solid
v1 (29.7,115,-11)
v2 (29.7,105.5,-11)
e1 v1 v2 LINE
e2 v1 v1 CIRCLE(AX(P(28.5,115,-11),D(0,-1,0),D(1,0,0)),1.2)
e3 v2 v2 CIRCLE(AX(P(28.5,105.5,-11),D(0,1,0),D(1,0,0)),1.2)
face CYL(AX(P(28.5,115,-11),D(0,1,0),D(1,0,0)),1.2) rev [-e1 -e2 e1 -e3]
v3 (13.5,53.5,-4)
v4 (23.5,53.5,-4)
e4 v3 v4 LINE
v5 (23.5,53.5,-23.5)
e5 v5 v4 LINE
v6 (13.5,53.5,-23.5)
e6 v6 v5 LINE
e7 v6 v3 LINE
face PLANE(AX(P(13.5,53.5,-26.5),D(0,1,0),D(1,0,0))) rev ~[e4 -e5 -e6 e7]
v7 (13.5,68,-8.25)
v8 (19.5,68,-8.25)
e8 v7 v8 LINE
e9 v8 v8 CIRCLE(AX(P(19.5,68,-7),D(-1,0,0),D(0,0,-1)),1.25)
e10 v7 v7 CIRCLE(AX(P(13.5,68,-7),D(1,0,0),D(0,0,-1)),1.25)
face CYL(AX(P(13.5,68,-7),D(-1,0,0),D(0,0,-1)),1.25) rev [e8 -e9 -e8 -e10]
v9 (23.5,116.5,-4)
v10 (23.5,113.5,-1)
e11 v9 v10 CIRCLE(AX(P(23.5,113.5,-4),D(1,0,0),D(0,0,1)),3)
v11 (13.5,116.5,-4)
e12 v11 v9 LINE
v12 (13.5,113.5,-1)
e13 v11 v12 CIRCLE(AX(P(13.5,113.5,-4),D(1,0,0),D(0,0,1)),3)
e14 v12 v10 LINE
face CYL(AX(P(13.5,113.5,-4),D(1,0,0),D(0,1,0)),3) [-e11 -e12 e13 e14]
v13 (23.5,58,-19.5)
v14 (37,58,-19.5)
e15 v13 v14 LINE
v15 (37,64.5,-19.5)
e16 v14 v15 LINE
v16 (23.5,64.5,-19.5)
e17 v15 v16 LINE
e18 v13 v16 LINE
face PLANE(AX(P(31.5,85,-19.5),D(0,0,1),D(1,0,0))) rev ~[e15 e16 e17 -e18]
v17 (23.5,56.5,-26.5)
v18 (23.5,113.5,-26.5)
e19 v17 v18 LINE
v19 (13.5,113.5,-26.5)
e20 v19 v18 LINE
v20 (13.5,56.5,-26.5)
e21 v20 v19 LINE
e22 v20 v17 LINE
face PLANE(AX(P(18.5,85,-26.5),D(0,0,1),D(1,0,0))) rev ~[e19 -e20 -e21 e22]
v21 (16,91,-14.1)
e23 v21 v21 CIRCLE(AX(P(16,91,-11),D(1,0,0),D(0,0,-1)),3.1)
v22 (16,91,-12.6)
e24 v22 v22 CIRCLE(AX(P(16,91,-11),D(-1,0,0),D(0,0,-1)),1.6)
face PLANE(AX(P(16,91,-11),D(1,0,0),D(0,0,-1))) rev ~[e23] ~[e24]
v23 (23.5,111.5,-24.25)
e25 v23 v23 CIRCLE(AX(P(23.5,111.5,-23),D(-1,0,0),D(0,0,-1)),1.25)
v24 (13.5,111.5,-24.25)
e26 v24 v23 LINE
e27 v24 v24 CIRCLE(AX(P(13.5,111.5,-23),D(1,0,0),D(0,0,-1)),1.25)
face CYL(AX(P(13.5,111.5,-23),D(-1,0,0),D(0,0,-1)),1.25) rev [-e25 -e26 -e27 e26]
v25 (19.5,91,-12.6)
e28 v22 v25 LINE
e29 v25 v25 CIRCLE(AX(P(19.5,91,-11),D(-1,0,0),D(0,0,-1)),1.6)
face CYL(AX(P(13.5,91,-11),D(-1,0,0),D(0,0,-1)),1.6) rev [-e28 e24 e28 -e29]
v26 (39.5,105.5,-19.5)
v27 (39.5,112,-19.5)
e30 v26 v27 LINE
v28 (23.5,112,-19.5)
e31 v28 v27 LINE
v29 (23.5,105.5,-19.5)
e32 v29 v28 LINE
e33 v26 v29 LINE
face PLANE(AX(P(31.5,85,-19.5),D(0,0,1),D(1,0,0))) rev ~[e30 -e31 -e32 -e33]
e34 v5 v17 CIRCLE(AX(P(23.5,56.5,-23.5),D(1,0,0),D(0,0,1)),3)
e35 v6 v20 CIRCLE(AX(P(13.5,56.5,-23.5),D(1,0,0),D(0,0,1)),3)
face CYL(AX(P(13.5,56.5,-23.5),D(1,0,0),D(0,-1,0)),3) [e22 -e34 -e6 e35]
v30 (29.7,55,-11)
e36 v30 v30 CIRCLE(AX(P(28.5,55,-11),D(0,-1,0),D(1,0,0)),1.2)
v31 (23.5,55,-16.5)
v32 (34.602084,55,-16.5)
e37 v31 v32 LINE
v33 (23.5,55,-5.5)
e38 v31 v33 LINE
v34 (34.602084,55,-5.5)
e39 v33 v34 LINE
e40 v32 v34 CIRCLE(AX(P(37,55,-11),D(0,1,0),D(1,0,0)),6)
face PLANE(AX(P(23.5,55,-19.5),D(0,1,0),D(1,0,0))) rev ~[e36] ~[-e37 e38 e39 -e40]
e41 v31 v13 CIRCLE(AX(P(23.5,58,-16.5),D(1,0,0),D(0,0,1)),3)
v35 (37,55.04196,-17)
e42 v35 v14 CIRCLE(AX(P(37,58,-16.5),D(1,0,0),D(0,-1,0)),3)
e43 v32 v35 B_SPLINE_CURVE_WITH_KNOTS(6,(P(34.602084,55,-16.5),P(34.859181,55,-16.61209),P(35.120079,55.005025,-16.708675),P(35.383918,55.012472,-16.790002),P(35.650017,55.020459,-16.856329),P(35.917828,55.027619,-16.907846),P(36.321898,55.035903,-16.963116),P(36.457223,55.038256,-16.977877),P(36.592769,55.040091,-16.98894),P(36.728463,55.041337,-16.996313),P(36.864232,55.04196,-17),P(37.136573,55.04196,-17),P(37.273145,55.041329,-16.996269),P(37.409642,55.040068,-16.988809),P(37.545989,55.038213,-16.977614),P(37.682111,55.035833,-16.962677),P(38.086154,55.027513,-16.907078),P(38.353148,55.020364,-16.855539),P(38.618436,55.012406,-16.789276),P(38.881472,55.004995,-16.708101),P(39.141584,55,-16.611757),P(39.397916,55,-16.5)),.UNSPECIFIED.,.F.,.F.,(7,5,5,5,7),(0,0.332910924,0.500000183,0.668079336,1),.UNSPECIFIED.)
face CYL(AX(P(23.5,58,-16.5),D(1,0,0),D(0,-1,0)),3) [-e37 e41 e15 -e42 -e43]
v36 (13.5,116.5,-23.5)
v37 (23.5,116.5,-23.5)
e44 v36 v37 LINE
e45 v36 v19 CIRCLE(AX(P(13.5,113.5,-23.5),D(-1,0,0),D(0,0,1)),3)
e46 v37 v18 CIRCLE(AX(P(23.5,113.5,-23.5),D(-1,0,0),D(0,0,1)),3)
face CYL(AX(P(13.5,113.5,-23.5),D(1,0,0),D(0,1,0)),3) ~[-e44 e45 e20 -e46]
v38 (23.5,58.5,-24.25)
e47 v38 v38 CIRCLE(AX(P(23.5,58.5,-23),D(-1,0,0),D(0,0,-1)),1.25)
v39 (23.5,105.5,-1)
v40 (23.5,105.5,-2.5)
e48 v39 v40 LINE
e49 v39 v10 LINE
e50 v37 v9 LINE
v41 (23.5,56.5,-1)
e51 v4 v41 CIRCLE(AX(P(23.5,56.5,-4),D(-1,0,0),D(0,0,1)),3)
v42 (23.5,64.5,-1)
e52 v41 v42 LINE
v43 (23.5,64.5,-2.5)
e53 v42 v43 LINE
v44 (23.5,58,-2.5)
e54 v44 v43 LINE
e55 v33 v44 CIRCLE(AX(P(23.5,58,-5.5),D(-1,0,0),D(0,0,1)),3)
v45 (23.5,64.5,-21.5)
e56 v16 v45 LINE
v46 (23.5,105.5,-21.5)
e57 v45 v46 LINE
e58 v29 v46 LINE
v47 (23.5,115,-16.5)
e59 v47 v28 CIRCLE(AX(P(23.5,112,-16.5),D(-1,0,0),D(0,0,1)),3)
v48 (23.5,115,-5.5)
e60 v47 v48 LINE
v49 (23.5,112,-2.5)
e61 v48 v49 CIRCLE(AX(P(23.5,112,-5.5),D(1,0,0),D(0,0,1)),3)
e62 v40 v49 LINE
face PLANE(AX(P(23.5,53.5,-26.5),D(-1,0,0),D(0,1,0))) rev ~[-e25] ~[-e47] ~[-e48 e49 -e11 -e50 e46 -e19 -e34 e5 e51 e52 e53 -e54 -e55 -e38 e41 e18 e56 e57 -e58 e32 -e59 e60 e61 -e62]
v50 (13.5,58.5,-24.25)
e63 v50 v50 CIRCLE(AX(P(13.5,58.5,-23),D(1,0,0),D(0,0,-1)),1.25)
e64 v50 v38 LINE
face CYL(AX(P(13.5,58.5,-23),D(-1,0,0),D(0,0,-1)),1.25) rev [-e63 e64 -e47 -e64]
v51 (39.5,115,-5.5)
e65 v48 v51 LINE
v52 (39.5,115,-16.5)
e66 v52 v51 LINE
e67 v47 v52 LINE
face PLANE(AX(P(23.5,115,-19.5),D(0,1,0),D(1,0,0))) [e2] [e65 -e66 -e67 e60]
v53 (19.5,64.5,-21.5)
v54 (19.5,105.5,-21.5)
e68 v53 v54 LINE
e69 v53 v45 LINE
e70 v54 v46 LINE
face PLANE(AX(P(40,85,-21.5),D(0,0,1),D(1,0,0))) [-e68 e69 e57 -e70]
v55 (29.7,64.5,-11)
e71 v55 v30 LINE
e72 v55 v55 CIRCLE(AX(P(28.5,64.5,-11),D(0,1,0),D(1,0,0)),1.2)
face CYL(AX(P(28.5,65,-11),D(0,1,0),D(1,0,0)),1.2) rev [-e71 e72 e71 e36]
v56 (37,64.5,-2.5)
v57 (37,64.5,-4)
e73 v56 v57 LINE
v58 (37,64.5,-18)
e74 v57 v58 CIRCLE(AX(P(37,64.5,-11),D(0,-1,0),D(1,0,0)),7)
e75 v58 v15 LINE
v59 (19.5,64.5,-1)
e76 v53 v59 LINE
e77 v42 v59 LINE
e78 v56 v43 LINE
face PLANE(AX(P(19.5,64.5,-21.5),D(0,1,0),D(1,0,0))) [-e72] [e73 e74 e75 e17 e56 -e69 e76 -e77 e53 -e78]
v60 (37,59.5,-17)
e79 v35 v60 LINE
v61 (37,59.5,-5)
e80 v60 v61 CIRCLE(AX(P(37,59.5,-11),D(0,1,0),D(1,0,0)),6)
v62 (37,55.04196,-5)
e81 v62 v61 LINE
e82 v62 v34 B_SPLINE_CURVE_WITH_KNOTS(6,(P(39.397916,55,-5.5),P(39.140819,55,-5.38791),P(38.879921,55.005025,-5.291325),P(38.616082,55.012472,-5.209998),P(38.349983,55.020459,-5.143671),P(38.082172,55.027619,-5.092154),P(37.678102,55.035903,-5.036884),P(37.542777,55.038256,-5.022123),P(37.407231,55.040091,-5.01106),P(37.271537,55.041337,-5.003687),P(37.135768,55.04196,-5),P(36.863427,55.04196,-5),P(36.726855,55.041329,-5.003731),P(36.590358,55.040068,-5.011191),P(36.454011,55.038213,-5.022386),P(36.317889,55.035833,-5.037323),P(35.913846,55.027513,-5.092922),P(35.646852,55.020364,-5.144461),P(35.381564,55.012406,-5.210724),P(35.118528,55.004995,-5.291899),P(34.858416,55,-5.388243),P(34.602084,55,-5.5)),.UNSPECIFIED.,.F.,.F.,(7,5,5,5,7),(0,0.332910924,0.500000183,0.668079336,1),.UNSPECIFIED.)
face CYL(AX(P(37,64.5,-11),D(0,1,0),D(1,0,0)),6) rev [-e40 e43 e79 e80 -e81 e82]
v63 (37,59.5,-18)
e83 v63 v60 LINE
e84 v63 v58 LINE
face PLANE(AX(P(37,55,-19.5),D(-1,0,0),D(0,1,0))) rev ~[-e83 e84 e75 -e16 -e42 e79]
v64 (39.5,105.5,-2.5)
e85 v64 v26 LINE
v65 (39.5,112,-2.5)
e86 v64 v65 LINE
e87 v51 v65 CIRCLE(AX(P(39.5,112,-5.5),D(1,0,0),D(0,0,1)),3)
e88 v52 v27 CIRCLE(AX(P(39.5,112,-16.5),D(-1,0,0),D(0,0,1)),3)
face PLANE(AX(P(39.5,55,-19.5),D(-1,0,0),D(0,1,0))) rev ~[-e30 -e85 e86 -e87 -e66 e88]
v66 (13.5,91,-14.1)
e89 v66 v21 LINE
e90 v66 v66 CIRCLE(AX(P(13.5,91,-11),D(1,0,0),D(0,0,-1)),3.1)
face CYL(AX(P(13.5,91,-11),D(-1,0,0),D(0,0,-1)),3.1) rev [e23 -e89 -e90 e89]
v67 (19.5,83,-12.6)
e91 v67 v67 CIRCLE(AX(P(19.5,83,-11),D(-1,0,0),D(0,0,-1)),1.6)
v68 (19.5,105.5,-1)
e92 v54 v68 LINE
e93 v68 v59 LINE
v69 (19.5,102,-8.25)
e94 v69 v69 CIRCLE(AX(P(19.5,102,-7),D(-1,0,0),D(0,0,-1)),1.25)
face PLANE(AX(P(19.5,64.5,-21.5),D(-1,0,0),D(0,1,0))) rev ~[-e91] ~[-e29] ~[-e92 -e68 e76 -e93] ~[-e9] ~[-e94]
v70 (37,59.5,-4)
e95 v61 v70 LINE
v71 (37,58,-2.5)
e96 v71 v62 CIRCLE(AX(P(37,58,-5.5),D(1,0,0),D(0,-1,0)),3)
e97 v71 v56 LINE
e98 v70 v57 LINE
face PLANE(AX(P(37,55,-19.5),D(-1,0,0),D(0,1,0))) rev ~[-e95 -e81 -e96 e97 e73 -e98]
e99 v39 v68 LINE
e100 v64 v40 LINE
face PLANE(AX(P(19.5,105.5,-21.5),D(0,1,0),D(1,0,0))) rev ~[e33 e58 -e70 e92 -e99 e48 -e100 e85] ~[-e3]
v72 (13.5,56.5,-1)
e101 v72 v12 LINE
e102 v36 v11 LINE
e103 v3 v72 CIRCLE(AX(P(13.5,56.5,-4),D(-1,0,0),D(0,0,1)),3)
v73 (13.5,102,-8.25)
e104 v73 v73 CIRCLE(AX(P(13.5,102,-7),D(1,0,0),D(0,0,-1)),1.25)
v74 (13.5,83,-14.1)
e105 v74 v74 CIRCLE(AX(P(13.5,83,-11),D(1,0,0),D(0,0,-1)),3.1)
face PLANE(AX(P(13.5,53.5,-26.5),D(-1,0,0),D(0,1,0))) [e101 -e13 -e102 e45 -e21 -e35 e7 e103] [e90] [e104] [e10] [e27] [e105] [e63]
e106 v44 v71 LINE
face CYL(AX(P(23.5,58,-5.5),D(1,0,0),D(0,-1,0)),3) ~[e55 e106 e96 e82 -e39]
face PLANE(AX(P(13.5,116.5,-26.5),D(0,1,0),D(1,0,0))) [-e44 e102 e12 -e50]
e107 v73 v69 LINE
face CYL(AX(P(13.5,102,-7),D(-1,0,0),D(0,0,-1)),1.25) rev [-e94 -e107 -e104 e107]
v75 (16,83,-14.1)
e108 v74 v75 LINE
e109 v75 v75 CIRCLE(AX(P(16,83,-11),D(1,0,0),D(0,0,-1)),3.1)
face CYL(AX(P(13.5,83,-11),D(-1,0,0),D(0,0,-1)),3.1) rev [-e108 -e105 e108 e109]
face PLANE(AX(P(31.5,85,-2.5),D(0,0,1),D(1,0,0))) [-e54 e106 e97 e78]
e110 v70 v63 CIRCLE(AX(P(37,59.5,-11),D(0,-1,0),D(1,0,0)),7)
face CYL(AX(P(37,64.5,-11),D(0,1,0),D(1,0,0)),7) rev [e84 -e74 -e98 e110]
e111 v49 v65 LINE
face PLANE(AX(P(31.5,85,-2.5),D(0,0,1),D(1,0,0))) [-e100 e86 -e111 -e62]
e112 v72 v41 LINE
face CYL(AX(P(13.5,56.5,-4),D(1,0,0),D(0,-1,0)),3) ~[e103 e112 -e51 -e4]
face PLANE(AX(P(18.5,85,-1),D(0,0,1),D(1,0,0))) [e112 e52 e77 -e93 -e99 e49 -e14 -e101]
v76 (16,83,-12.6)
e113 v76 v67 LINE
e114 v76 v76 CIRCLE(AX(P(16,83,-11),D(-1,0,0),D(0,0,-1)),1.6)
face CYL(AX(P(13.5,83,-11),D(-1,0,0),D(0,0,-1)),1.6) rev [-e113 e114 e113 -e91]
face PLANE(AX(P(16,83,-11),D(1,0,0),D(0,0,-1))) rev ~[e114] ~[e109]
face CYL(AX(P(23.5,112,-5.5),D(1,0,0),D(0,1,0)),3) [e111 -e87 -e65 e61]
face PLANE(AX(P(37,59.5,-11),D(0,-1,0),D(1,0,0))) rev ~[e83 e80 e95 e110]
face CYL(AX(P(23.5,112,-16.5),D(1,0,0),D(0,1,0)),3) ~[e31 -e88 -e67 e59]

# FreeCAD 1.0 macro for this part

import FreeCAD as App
import Part
import Sketcher

V = App.Vector


def edges_at(feature, points):
    """Names of the edges that pass closest to the given points."""
    edges = feature.Shape.Edges
    near = lambda p: min(range(len(edges)), key=lambda i: edges[i].distToShape(Part.Vertex(*p))[0])
    return sorted({f"Edge{near(p) + 1}" for p in points})

doc = App.newDocument("Part")
body = doc.addObject("PartDesign::Body", "Body")

sketch1 = doc.addObject("Sketcher::SketchObject", "Sketch")
body.addObject(sketch1)
sketch1.AttachmentSupport = (doc.XY_Plane, [""])
sketch1.MapMode = "FlatFace"
sketch1.addGeometry(Part.Circle(V(0, 0, 0), V(0, 0, 1), 1.6), False)
sketch1.addConstraint(Sketcher.Constraint("Coincident", 0, 3, -1, 1))
sketch1.addConstraint(Sketcher.Constraint("Diameter", 0, 3.2))
pad1 = doc.addObject("PartDesign::Pad", "Pad")
body.addObject(pad1)
pad1.Profile = sketch1
pad1.Length = 10
body2 = doc.addObject("PartDesign::Body", "Body001")
doc.recompute()

body.Placement = App.Placement(V(0, 0, 0), App.Rotation(V(0, 1, 0), 90))
boolean = doc.addObject("PartDesign::Boolean", "Boolean")
body2.addObject(boolean)
boolean.Type = "Fuse"
boolean.addObjects([body])
body3 = doc.addObject("PartDesign::Body", "Body002")
doc.recompute()

body2.Placement = App.Placement(V(13.5, 83, -11), App.Rotation(V(0, 0, 1), 0))
boolean2 = doc.addObject("PartDesign::Boolean", "Boolean001")
body3.addObject(boolean2)
boolean2.Type = "Fuse"
boolean2.addObjects([body2])
body4 = doc.addObject("PartDesign::Body", "Body003")

sketch2 = doc.addObject("Sketcher::SketchObject", "Sketch001")
body4.addObject(sketch2)
sketch2.AttachmentSupport = (doc.getObject("XY_Plane003"), [""])
sketch2.MapMode = "FlatFace"
sketch2.addGeometry(Part.Circle(V(0, 0, 0), V(0, 0, 1), 1.6), False)
sketch2.addConstraint(Sketcher.Constraint("Coincident", 0, 3, -1, 1))
sketch2.addConstraint(Sketcher.Constraint("Diameter", 0, 3.2))
pad2 = doc.addObject("PartDesign::Pad", "Pad001")
body4.addObject(pad2)
pad2.Profile = sketch2
pad2.Length = 10
body5 = doc.addObject("PartDesign::Body", "Body004")
doc.recompute()

body4.Placement = App.Placement(V(0, 0, 0), App.Rotation(V(0, 1, 0), 90))
boolean3 = doc.addObject("PartDesign::Boolean", "Boolean002")
body5.addObject(boolean3)
boolean3.Type = "Fuse"
boolean3.addObjects([body4])
body6 = doc.addObject("PartDesign::Body", "Body005")
doc.recompute()

body5.Placement = App.Placement(V(13.5, 91, -11), App.Rotation(V(0, 0, 1), 0))
boolean4 = doc.addObject("PartDesign::Boolean", "Boolean003")
body6.addObject(boolean4)
boolean4.Type = "Fuse"
boolean4.addObjects([body5])
body7 = doc.addObject("PartDesign::Body", "Body006")

sketch3 = doc.addObject("Sketcher::SketchObject", "Sketch002")
body7.addObject(sketch3)
sketch3.AttachmentSupport = (doc.getObject("XY_Plane006"), [""])
sketch3.MapMode = "FlatFace"
sketch3.addGeometry(Part.Circle(V(0, 0, 0), V(0, 0, 1), 3.1), False)
sketch3.addConstraint(Sketcher.Constraint("Coincident", 0, 3, -1, 1))
sketch3.addConstraint(Sketcher.Constraint("Diameter", 0, 6.2))
pad3 = doc.addObject("PartDesign::Pad", "Pad002")
body7.addObject(pad3)
pad3.Profile = sketch3
pad3.Length = 2.5
body8 = doc.addObject("PartDesign::Body", "Body007")
doc.recompute()

body7.Placement = App.Placement(V(0, 0, 0), App.Rotation(V(0, 1, 0), 90))
boolean5 = doc.addObject("PartDesign::Boolean", "Boolean004")
body8.addObject(boolean5)
boolean5.Type = "Fuse"
boolean5.addObjects([body7])
body9 = doc.addObject("PartDesign::Body", "Body008")
doc.recompute()

body8.Placement = App.Placement(V(13.5, 83, -11), App.Rotation(V(0, 0, 1), 0))
boolean6 = doc.addObject("PartDesign::Boolean", "Boolean005")
body9.addObject(boolean6)
boolean6.Type = "Fuse"
boolean6.addObjects([body8])
body10 = doc.addObject("PartDesign::Body", "Body009")

sketch4 = doc.addObject("Sketcher::SketchObject", "Sketch003")
body10.addObject(sketch4)
sketch4.AttachmentSupport = (doc.getObject("XY_Plane009"), [""])
sketch4.MapMode = "FlatFace"
sketch4.addGeometry(Part.Circle(V(0, 0, 0), V(0, 0, 1), 3.1), False)
sketch4.addConstraint(Sketcher.Constraint("Coincident", 0, 3, -1, 1))
sketch4.addConstraint(Sketcher.Constraint("Diameter", 0, 6.2))
pad4 = doc.addObject("PartDesign::Pad", "Pad003")
body10.addObject(pad4)
pad4.Profile = sketch4
pad4.Length = 2.5
body11 = doc.addObject("PartDesign::Body", "Body010")
doc.recompute()

body10.Placement = App.Placement(V(0, 0, 0), App.Rotation(V(0, 1, 0), 90))
boolean7 = doc.addObject("PartDesign::Boolean", "Boolean006")
body11.addObject(boolean7)
boolean7.Type = "Fuse"
boolean7.addObjects([body10])
body12 = doc.addObject("PartDesign::Body", "Body011")
body12.AllowCompound = True
doc.recompute()

body11.Placement = App.Placement(V(13.5, 91, -11), App.Rotation(V(0, 0, 1), 0))
boolean8 = doc.addObject("PartDesign::Boolean", "Boolean007")
body12.addObject(boolean8)
boolean8.Type = "Fuse"
boolean8.addObjects([body11])
doc.recompute()

boolean9 = doc.addObject("PartDesign::Boolean", "Boolean008")
body12.addObject(boolean9)
boolean9.Type = "Fuse"
boolean9.addObjects([body3])
doc.recompute()

boolean10 = doc.addObject("PartDesign::Boolean", "Boolean009")
body12.addObject(boolean10)
boolean10.Type = "Fuse"
boolean10.addObjects([body6])
doc.recompute()

boolean11 = doc.addObject("PartDesign::Boolean", "Boolean010")
body12.addObject(boolean11)
boolean11.Type = "Fuse"
boolean11.addObjects([body9])
body13 = doc.addObject("PartDesign::Body", "Body012")

sketch5 = doc.addObject("Sketcher::SketchObject", "Sketch004")
body13.addObject(sketch5)
sketch5.AttachmentSupport = (doc.getObject("XY_Plane012"), [""])
sketch5.MapMode = "FlatFace"
sketch5.AttachmentOffset = App.Placement(V(0, 0, -21.5), App.Rotation())
sketch5.addGeometry(Part.LineSegment(V(20, 106, 0), V(20, 64, 0)), False)
sketch5.addGeometry(Part.LineSegment(V(20, 64, 0), V(60, 64, 0)), False)
sketch5.addGeometry(Part.LineSegment(V(60, 64, 0), V(60, 106, 0)), False)
sketch5.addGeometry(Part.LineSegment(V(60, 106, 0), V(20, 106, 0)), False)
sketch5.addConstraint(Sketcher.Constraint("Coincident", 0, 2, 1, 1))
sketch5.addConstraint(Sketcher.Constraint("Coincident", 1, 2, 2, 1))
sketch5.addConstraint(Sketcher.Constraint("Coincident", 2, 2, 3, 1))
sketch5.addConstraint(Sketcher.Constraint("Coincident", 3, 2, 0, 1))
sketch5.addConstraint(Sketcher.Constraint("Vertical", 0))
sketch5.addConstraint(Sketcher.Constraint("Horizontal", 1))
sketch5.addConstraint(Sketcher.Constraint("Vertical", 2))
sketch5.addConstraint(Sketcher.Constraint("Horizontal", 3))
sketch5.addConstraint(Sketcher.Constraint("Equal", 3, 0))
sketch5.addConstraint(Sketcher.Constraint("DistanceX", 1, 1, 1, 2, 41.0))
sketch5.addConstraint(Sketcher.Constraint("DistanceX", -1, 1, 0, 2, 19.5))
sketch5.addConstraint(Sketcher.Constraint("DistanceY", -1, 1, 0, 2, 64.5))
pad5 = doc.addObject("PartDesign::Pad", "Pad004")
body13.addObject(pad5)
pad5.Profile = sketch5
pad5.Length = 21
body14 = doc.addObject("PartDesign::Body", "Body013")

sketch6 = doc.addObject("Sketcher::SketchObject", "Sketch005")
body14.addObject(sketch6)
sketch6.AttachmentSupport = (doc.getObject("XY_Plane013"), [""])
sketch6.MapMode = "FlatFace"
sketch6.addGeometry(Part.Circle(V(0, 0, 0), V(0, 0, 1), 6), False)
sketch6.addConstraint(Sketcher.Constraint("Coincident", 0, 3, -1, 1))
sketch6.addConstraint(Sketcher.Constraint("Diameter", 0, 12.0))
pad6 = doc.addObject("PartDesign::Pad", "Pad005")
body14.addObject(pad6)
pad6.Profile = sketch6
pad6.Length = 11
body15 = doc.addObject("PartDesign::Body", "Body014")
doc.recompute()

body14.Placement = App.Placement(V(0, 0, 0), App.Rotation(V(1, 0, 0), 90))
boolean12 = doc.addObject("PartDesign::Boolean", "Boolean011")
body15.addObject(boolean12)
boolean12.Type = "Fuse"
boolean12.addObjects([body14])
body16 = doc.addObject("PartDesign::Body", "Body015")
doc.recompute()

body15.Placement = App.Placement(V(37, 64.5, -11), App.Rotation(V(0, 0, 1), 0))
boolean13 = doc.addObject("PartDesign::Boolean", "Boolean012")
body16.addObject(boolean13)
boolean13.Type = "Fuse"
boolean13.addObjects([body15])
body17 = doc.addObject("PartDesign::Body", "Body016")

sketch7 = doc.addObject("Sketcher::SketchObject", "Sketch006")
body17.addObject(sketch7)
sketch7.AttachmentSupport = (doc.getObject("XY_Plane016"), [""])
sketch7.MapMode = "FlatFace"
sketch7.addGeometry(Part.Circle(V(0, 0, 0), V(0, 0, 1), 7), False)
sketch7.addConstraint(Sketcher.Constraint("Coincident", 0, 3, -1, 1))
sketch7.addConstraint(Sketcher.Constraint("Diameter", 0, 14.0))
pad7 = doc.addObject("PartDesign::Pad", "Pad006")
body17.addObject(pad7)
pad7.Profile = sketch7
pad7.Length = 5
body18 = doc.addObject("PartDesign::Body", "Body017")
doc.recompute()

body17.Placement = App.Placement(V(0, 0, 0), App.Rotation(V(1, 0, 0), 90))
boolean14 = doc.addObject("PartDesign::Boolean", "Boolean013")
body18.addObject(boolean14)
boolean14.Type = "Fuse"
boolean14.addObjects([body17])
body19 = doc.addObject("PartDesign::Body", "Body018")
doc.recompute()

body18.Placement = App.Placement(V(37, 64.5, -11), App.Rotation(V(0, 0, 1), 0))
boolean15 = doc.addObject("PartDesign::Boolean", "Boolean014")
body19.addObject(boolean15)
boolean15.Type = "Fuse"
boolean15.addObjects([body18])
body20 = doc.addObject("PartDesign::Body", "Body019")

sketch8 = doc.addObject("Sketcher::SketchObject", "Sketch007")
body20.addObject(sketch8)
sketch8.AttachmentSupport = (doc.getObject("XY_Plane019"), [""])
sketch8.MapMode = "FlatFace"
sketch8.AttachmentOffset = App.Placement(V(0, 0, -19.5), App.Rotation())
sketch8.addGeometry(Part.LineSegment(V(37, 65, 0), V(37, 55, 0)), False)
sketch8.addGeometry(Part.LineSegment(V(37, 55, 0), V(47, 55, 0)), False)
sketch8.addGeometry(Part.LineSegment(V(47, 55, 0), V(47, 65, 0)), False)
sketch8.addGeometry(Part.LineSegment(V(47, 65, 0), V(37, 65, 0)), False)
sketch8.addConstraint(Sketcher.Constraint("Coincident", 0, 2, 1, 1))
sketch8.addConstraint(Sketcher.Constraint("Coincident", 1, 2, 2, 1))
sketch8.addConstraint(Sketcher.Constraint("Coincident", 2, 2, 3, 1))
sketch8.addConstraint(Sketcher.Constraint("Coincident", 3, 2, 0, 1))
sketch8.addConstraint(Sketcher.Constraint("Vertical", 0))
sketch8.addConstraint(Sketcher.Constraint("Horizontal", 1))
sketch8.addConstraint(Sketcher.Constraint("Vertical", 2))
sketch8.addConstraint(Sketcher.Constraint("Horizontal", 3))
sketch8.addConstraint(Sketcher.Constraint("Equal", 3, 0))
sketch8.addConstraint(Sketcher.Constraint("DistanceX", 1, 1, 1, 2, 10.0))
sketch8.addConstraint(Sketcher.Constraint("DistanceX", -1, 1, 0, 2, 37.0))
sketch8.addConstraint(Sketcher.Constraint("DistanceY", -1, 1, 0, 2, 55.0))
pad8 = doc.addObject("PartDesign::Pad", "Pad007")
body20.addObject(pad8)
pad8.Profile = sketch8
pad8.Length = 17
doc.recompute()

boolean16 = doc.addObject("PartDesign::Boolean", "Boolean015")
body20.addObject(boolean16)
boolean16.Type = "Fuse"
boolean16.addObjects([body13])
doc.recompute()

boolean17 = doc.addObject("PartDesign::Boolean", "Boolean016")
body20.addObject(boolean17)
boolean17.Type = "Fuse"
boolean17.addObjects([body16])
doc.recompute()

boolean18 = doc.addObject("PartDesign::Boolean", "Boolean017")
body20.addObject(boolean18)
boolean18.Type = "Fuse"
boolean18.addObjects([body19])
body21 = doc.addObject("PartDesign::Body", "Body020")

sketch9 = doc.addObject("Sketcher::SketchObject", "Sketch008")
body21.addObject(sketch9)
sketch9.AttachmentSupport = (doc.getObject("XY_Plane020"), [""])
sketch9.MapMode = "FlatFace"
sketch9.addGeometry(Part.Circle(V(0, 0, 0), V(0, 0, 1), 1.2), False)
sketch9.addConstraint(Sketcher.Constraint("Coincident", 0, 3, -1, 1))
sketch9.addConstraint(Sketcher.Constraint("Diameter", 0, 2.4))
pad9 = doc.addObject("PartDesign::Pad", "Pad008")
body21.addObject(pad9)
pad9.Profile = sketch9
pad9.Length = 10
body22 = doc.addObject("PartDesign::Body", "Body021")
doc.recompute()

body21.Placement = App.Placement(V(0, 0, 0), App.Rotation(V(1, 0, 0), 90))
boolean19 = doc.addObject("PartDesign::Boolean", "Boolean018")
body22.addObject(boolean19)
boolean19.Type = "Fuse"
boolean19.addObjects([body21])
body23 = doc.addObject("PartDesign::Body", "Body022")
doc.recompute()

body22.Placement = App.Placement(V(3, 10, 10), App.Rotation(V(0, 0, 1), 0))
boolean20 = doc.addObject("PartDesign::Boolean", "Boolean019")
body23.addObject(boolean20)
boolean20.Type = "Fuse"
boolean20.addObjects([body22])
body24 = doc.addObject("PartDesign::Body", "Body023")

sketch10 = doc.addObject("Sketcher::SketchObject", "Sketch009")
body24.addObject(sketch10)
sketch10.AttachmentSupport = (doc.getObject("XY_Plane023"), [""])
sketch10.MapMode = "FlatFace"
sketch10.addGeometry(Part.Circle(V(0, 0, 0), V(0, 0, 1), 1.2), False)
sketch10.addConstraint(Sketcher.Constraint("Coincident", 0, 3, -1, 1))
sketch10.addConstraint(Sketcher.Constraint("Diameter", 0, 2.4))
pad10 = doc.addObject("PartDesign::Pad", "Pad009")
body24.addObject(pad10)
pad10.Profile = sketch10
pad10.Length = 10
body25 = doc.addObject("PartDesign::Body", "Body024")
doc.recompute()

body24.Placement = App.Placement(V(0, 0, 0), App.Rotation(V(1, 0, 0), 90))
boolean21 = doc.addObject("PartDesign::Boolean", "Boolean020")
body25.addObject(boolean21)
boolean21.Type = "Fuse"
boolean21.addObjects([body24])
body26 = doc.addObject("PartDesign::Body", "Body025")
body26.AllowCompound = True
doc.recompute()

body25.Placement = App.Placement(V(3, 60, 10), App.Rotation(V(0, 0, 1), 0))
boolean22 = doc.addObject("PartDesign::Boolean", "Boolean021")
body26.addObject(boolean22)
boolean22.Type = "Fuse"
boolean22.addObjects([body25])
doc.recompute()

boolean23 = doc.addObject("PartDesign::Boolean", "Boolean022")
body26.addObject(boolean23)
boolean23.Type = "Fuse"
boolean23.addObjects([body23])
body27 = doc.addObject("PartDesign::Body", "Body026")
body27.AllowCompound = True
doc.recompute()

body26.Placement = App.Placement(V(0, 0, 2), App.Rotation(V(0, 0, 1), 0))
boolean24 = doc.addObject("PartDesign::Boolean", "Boolean023")
body27.addObject(boolean24)
boolean24.Type = "Fuse"
boolean24.addObjects([body26])
body28 = doc.addObject("PartDesign::Body", "Body027")

sketch11 = doc.addObject("Sketcher::SketchObject", "Sketch010")
body28.addObject(sketch11)
sketch11.AttachmentSupport = (doc.getObject("XY_Plane027"), [""])
sketch11.MapMode = "FlatFace"
sketch11.addGeometry(Part.Circle(V(0, 0, 0), V(0, 0, 1), 1.2), False)
sketch11.addConstraint(Sketcher.Constraint("Coincident", 0, 3, -1, 1))
sketch11.addConstraint(Sketcher.Constraint("Diameter", 0, 2.5))
pad11 = doc.addObject("PartDesign::Pad", "Pad010")
body28.addObject(pad11)
pad11.Profile = sketch11
pad11.Length = 15
body29 = doc.addObject("PartDesign::Body", "Body028")
doc.recompute()

body28.Placement = App.Placement(V(0, 0, 0), App.Rotation(V(0, 1, 0), 90))
boolean25 = doc.addObject("PartDesign::Boolean", "Boolean024")
body29.addObject(boolean25)
boolean25.Type = "Fuse"
boolean25.addObjects([body28])
body30 = doc.addObject("PartDesign::Body", "Body029")
doc.recompute()

body29.Placement = App.Placement(V(-2, 23, 15), App.Rotation(V(0, 0, 1), 0))
boolean26 = doc.addObject("PartDesign::Boolean", "Boolean025")
body30.addObject(boolean26)
boolean26.Type = "Fuse"
boolean26.addObjects([body29])
body31 = doc.addObject("PartDesign::Body", "Body030")

sketch12 = doc.addObject("Sketcher::SketchObject", "Sketch011")
body31.addObject(sketch12)
sketch12.AttachmentSupport = (doc.getObject("XY_Plane030"), [""])
sketch12.MapMode = "FlatFace"
sketch12.addGeometry(Part.Circle(V(0, 0, 0), V(0, 0, 1), 1.2), False)
sketch12.addConstraint(Sketcher.Constraint("Coincident", 0, 3, -1, 1))
sketch12.addConstraint(Sketcher.Constraint("Diameter", 0, 2.5))
pad12 = doc.addObject("PartDesign::Pad", "Pad011")
body31.addObject(pad12)
pad12.Profile = sketch12
pad12.Length = 11
body32 = doc.addObject("PartDesign::Body", "Body031")
doc.recompute()

body31.Placement = App.Placement(V(0, 0, 0), App.Rotation(V(0, 1, 0), 90))
boolean27 = doc.addObject("PartDesign::Boolean", "Boolean026")
body32.addObject(boolean27)
boolean27.Type = "Fuse"
boolean27.addObjects([body31])
body33 = doc.addObject("PartDesign::Body", "Body032")
doc.recompute()

body32.Placement = App.Placement(V(-2, 13.5, -1), App.Rotation(V(0, 0, 1), 0))
boolean28 = doc.addObject("PartDesign::Boolean", "Boolean027")
body33.addObject(boolean28)
boolean28.Type = "Fuse"
boolean28.addObjects([body32])
body34 = doc.addObject("PartDesign::Body", "Body033")

sketch13 = doc.addObject("Sketcher::SketchObject", "Sketch012")
body34.addObject(sketch13)
sketch13.AttachmentSupport = (doc.getObject("XY_Plane033"), [""])
sketch13.MapMode = "FlatFace"
sketch13.addGeometry(Part.Circle(V(0, 0, 0), V(0, 0, 1), 1.2), False)
sketch13.addConstraint(Sketcher.Constraint("Coincident", 0, 3, -1, 1))
sketch13.addConstraint(Sketcher.Constraint("Diameter", 0, 2.5))
pad13 = doc.addObject("PartDesign::Pad", "Pad012")
body34.addObject(pad13)
pad13.Profile = sketch13
pad13.Length = 15
body35 = doc.addObject("PartDesign::Body", "Body034")
doc.recompute()

body34.Placement = App.Placement(V(0, 0, 0), App.Rotation(V(0, 1, 0), 90))
boolean29 = doc.addObject("PartDesign::Boolean", "Boolean028")
body35.addObject(boolean29)
boolean29.Type = "Fuse"
boolean29.addObjects([body34])
body36 = doc.addObject("PartDesign::Body", "Body035")
doc.recompute()

body35.Placement = App.Placement(V(-2, 57, 15), App.Rotation(V(0, 0, 1), 0))
boolean30 = doc.addObject("PartDesign::Boolean", "Boolean029")
body36.addObject(boolean30)
boolean30.Type = "Fuse"
boolean30.addObjects([body35])
body37 = doc.addObject("PartDesign::Body", "Body036")

sketch14 = doc.addObject("Sketcher::SketchObject", "Sketch013")
body37.addObject(sketch14)
sketch14.AttachmentSupport = (doc.getObject("XY_Plane036"), [""])
sketch14.MapMode = "FlatFace"
sketch14.addGeometry(Part.Circle(V(0, 0, 0), V(0, 0, 1), 1.2), False)
sketch14.addConstraint(Sketcher.Constraint("Coincident", 0, 3, -1, 1))
sketch14.addConstraint(Sketcher.Constraint("Diameter", 0, 2.5))
pad14 = doc.addObject("PartDesign::Pad", "Pad013")
body37.addObject(pad14)
pad14.Profile = sketch14
pad14.Length = 11
body38 = doc.addObject("PartDesign::Body", "Body037")
doc.recompute()

body37.Placement = App.Placement(V(0, 0, 0), App.Rotation(V(0, 1, 0), 90))
boolean31 = doc.addObject("PartDesign::Boolean", "Boolean030")
body38.addObject(boolean31)
boolean31.Type = "Fuse"
boolean31.addObjects([body37])
body39 = doc.addObject("PartDesign::Body", "Body038")
body39.AllowCompound = True
doc.recompute()

body38.Placement = App.Placement(V(-2, 66.5, -1), App.Rotation(V(0, 0, 1), 0))
boolean32 = doc.addObject("PartDesign::Boolean", "Boolean031")
body39.addObject(boolean32)
boolean32.Type = "Fuse"
boolean32.addObjects([body38])
doc.recompute()

boolean33 = doc.addObject("PartDesign::Boolean", "Boolean032")
body39.addObject(boolean33)
boolean33.Type = "Fuse"
boolean33.addObjects([body30])
doc.recompute()

boolean34 = doc.addObject("PartDesign::Boolean", "Boolean033")
body39.addObject(boolean34)
boolean34.Type = "Fuse"
boolean34.addObjects([body33])
doc.recompute()

boolean35 = doc.addObject("PartDesign::Boolean", "Boolean034")
body39.addObject(boolean35)
boolean35.Type = "Fuse"
boolean35.addObjects([body36])
body40 = doc.addObject("PartDesign::Body", "Body039")
body40.AllowCompound = True
doc.recompute()

body39.Placement = App.Placement(V(-10, -10, 1), App.Rotation(V(0, 0, 1), 0))
boolean36 = doc.addObject("PartDesign::Boolean", "Boolean035")
body40.addObject(boolean36)
boolean36.Type = "Fuse"
boolean36.addObjects([body39])
doc.recompute()

boolean37 = doc.addObject("PartDesign::Boolean", "Boolean036")
body40.addObject(boolean37)
boolean37.Type = "Fuse"
boolean37.addObjects([body27])
body41 = doc.addObject("PartDesign::Body", "Body040")
body41.AllowCompound = True
doc.recompute()

body40.Placement = App.Placement(V(25.5, 55, -23), App.Rotation(V(0, 0, 1), 0))
boolean38 = doc.addObject("PartDesign::Boolean", "Boolean037")
body41.addObject(boolean38)
boolean38.Type = "Fuse"
boolean38.addObjects([body40])
body42 = doc.addObject("PartDesign::Body", "Body041")

sketch15 = doc.addObject("Sketcher::SketchObject", "Sketch014")
body42.addObject(sketch15)
sketch15.AttachmentSupport = (doc.getObject("XY_Plane041"), [""])
sketch15.MapMode = "FlatFace"
sketch15.AttachmentOffset = App.Placement(V(0, 0, 1.5), App.Rotation())
sketch15.addGeometry(Part.LineSegment(V(-2, 60, 0), V(-2, 0, 0)), False)
sketch15.addGeometry(Part.LineSegment(V(-2, 0, 0), V(14, 0, 0)), False)
sketch15.addGeometry(Part.LineSegment(V(14, 0, 0), V(14, 60, 0)), False)
sketch15.addGeometry(Part.LineSegment(V(14, 60, 0), V(-2, 60, 0)), False)
sketch15.addConstraint(Sketcher.Constraint("Coincident", 0, 2, 1, 1))
sketch15.addConstraint(Sketcher.Constraint("Coincident", 1, 2, 2, 1))
sketch15.addConstraint(Sketcher.Constraint("Coincident", 2, 2, 3, 1))
sketch15.addConstraint(Sketcher.Constraint("Coincident", 3, 2, 0, 1))
sketch15.addConstraint(Sketcher.Constraint("Vertical", 0))
sketch15.addConstraint(Sketcher.Constraint("Horizontal", 1))
sketch15.addConstraint(Sketcher.Constraint("Vertical", 2))
sketch15.addConstraint(Sketcher.Constraint("Horizontal", 3))
sketch15.addConstraint(Sketcher.Constraint("PointOnObject", 0, 2, -1))
sketch15.addConstraint(Sketcher.Constraint("DistanceX", 1, 1, 1, 2, 16.0))
sketch15.addConstraint(Sketcher.Constraint("DistanceY", 0, 2, 0, 1, 60.0))
sketch15.addConstraint(Sketcher.Constraint("DistanceX", 0, 2, -1, 1, 2.0))
pad15 = doc.addObject("PartDesign::Pad", "Pad014")
body42.addObject(pad15)
pad15.Profile = sketch15
pad15.Length = 17
doc.recompute()

fillet = doc.addObject("PartDesign::Fillet", "Fillet")
body42.addObject(fillet)
fillet.Base = (pad15, edges_at(pad15, [
    (6, 0, 1.5),
    (6, 0, 18.5),
    (6, 60, 1.5),
    (6, 60, 18.5),
]))
fillet.Radius = 3
body43 = doc.addObject("PartDesign::Body", "Body042")
doc.recompute()

body42.Placement = App.Placement(V(25.5, 55, -21), App.Rotation(V(0, 0, 1), 0))
boolean39 = doc.addObject("PartDesign::Boolean", "Boolean038")
body43.addObject(boolean39)
boolean39.Type = "Fuse"
boolean39.addObjects([body42])
body44 = doc.addObject("PartDesign::Body", "Body043")

sketch16 = doc.addObject("Sketcher::SketchObject", "Sketch015")
body44.addObject(sketch16)
sketch16.AttachmentSupport = (doc.getObject("XY_Plane043"), [""])
sketch16.MapMode = "FlatFace"
sketch16.AttachmentOffset = App.Placement(V(0, 0, -5), App.Rotation())
sketch16.addGeometry(Part.LineSegment(V(-12, 63, 0), V(-12, 0, 0)), False)
sketch16.addGeometry(Part.LineSegment(V(-12, 0, 0), V(-2, 0, 0)), False)
sketch16.addGeometry(Part.LineSegment(V(-2, 0, 0), V(-2, 63, 0)), False)
sketch16.addGeometry(Part.LineSegment(V(-2, 63, 0), V(-12, 63, 0)), False)
sketch16.addConstraint(Sketcher.Constraint("Coincident", 0, 2, 1, 1))
sketch16.addConstraint(Sketcher.Constraint("Coincident", 1, 2, 2, 1))
sketch16.addConstraint(Sketcher.Constraint("Coincident", 2, 2, 3, 1))
sketch16.addConstraint(Sketcher.Constraint("Coincident", 3, 2, 0, 1))
sketch16.addConstraint(Sketcher.Constraint("Vertical", 0))
sketch16.addConstraint(Sketcher.Constraint("Horizontal", 1))
sketch16.addConstraint(Sketcher.Constraint("Vertical", 2))
sketch16.addConstraint(Sketcher.Constraint("Horizontal", 3))
sketch16.addConstraint(Sketcher.Constraint("PointOnObject", 0, 2, -1))
sketch16.addConstraint(Sketcher.Constraint("DistanceX", 1, 1, 1, 2, 10.0))
sketch16.addConstraint(Sketcher.Constraint("DistanceY", 0, 2, 0, 1, 63.0))
sketch16.addConstraint(Sketcher.Constraint("DistanceX", 0, 2, -1, 1, 12.0))
pad16 = doc.addObject("PartDesign::Pad", "Pad015")
body44.addObject(pad16)
pad16.Profile = sketch16
pad16.Length = 25.5
doc.recompute()

fillet2 = doc.addObject("PartDesign::Fillet", "Fillet001")
body44.addObject(fillet2)
fillet2.Base = (pad16, edges_at(pad16, [
    (-7, 0, -5),
    (-7, 0, 20.5),
    (-7, 63, -5),
    (-7, 63, 20.5),
]))
fillet2.Radius = 3
body45 = doc.addObject("PartDesign::Body", "Body044")
doc.recompute()

body44.Placement = App.Placement(V(25.5, 53.5, -21.5), App.Rotation(V(0, 0, 1), 0))
boolean40 = doc.addObject("PartDesign::Boolean", "Boolean039")
body45.addObject(boolean40)
boolean40.Type = "Fuse"
boolean40.addObjects([body44])
doc.recompute()

boolean41 = doc.addObject("PartDesign::Boolean", "Boolean040")
body45.addObject(boolean41)
boolean41.Type = "Fuse"
boolean41.addObjects([body43])
doc.recompute()

boolean42 = doc.addObject("PartDesign::Boolean", "Boolean041")
body45.addObject(boolean42)
boolean42.Type = "Cut"
boolean42.addObjects([body41])
doc.recompute()

boolean43 = doc.addObject("PartDesign::Boolean", "Boolean042")
body45.addObject(boolean43)
boolean43.Type = "Cut"
boolean43.addObjects([body20])
doc.recompute()

boolean44 = doc.addObject("PartDesign::Boolean", "Boolean043")
body45.addObject(boolean44)
boolean44.Type = "Cut"
boolean44.addObjects([body12])

doc.recompute()
